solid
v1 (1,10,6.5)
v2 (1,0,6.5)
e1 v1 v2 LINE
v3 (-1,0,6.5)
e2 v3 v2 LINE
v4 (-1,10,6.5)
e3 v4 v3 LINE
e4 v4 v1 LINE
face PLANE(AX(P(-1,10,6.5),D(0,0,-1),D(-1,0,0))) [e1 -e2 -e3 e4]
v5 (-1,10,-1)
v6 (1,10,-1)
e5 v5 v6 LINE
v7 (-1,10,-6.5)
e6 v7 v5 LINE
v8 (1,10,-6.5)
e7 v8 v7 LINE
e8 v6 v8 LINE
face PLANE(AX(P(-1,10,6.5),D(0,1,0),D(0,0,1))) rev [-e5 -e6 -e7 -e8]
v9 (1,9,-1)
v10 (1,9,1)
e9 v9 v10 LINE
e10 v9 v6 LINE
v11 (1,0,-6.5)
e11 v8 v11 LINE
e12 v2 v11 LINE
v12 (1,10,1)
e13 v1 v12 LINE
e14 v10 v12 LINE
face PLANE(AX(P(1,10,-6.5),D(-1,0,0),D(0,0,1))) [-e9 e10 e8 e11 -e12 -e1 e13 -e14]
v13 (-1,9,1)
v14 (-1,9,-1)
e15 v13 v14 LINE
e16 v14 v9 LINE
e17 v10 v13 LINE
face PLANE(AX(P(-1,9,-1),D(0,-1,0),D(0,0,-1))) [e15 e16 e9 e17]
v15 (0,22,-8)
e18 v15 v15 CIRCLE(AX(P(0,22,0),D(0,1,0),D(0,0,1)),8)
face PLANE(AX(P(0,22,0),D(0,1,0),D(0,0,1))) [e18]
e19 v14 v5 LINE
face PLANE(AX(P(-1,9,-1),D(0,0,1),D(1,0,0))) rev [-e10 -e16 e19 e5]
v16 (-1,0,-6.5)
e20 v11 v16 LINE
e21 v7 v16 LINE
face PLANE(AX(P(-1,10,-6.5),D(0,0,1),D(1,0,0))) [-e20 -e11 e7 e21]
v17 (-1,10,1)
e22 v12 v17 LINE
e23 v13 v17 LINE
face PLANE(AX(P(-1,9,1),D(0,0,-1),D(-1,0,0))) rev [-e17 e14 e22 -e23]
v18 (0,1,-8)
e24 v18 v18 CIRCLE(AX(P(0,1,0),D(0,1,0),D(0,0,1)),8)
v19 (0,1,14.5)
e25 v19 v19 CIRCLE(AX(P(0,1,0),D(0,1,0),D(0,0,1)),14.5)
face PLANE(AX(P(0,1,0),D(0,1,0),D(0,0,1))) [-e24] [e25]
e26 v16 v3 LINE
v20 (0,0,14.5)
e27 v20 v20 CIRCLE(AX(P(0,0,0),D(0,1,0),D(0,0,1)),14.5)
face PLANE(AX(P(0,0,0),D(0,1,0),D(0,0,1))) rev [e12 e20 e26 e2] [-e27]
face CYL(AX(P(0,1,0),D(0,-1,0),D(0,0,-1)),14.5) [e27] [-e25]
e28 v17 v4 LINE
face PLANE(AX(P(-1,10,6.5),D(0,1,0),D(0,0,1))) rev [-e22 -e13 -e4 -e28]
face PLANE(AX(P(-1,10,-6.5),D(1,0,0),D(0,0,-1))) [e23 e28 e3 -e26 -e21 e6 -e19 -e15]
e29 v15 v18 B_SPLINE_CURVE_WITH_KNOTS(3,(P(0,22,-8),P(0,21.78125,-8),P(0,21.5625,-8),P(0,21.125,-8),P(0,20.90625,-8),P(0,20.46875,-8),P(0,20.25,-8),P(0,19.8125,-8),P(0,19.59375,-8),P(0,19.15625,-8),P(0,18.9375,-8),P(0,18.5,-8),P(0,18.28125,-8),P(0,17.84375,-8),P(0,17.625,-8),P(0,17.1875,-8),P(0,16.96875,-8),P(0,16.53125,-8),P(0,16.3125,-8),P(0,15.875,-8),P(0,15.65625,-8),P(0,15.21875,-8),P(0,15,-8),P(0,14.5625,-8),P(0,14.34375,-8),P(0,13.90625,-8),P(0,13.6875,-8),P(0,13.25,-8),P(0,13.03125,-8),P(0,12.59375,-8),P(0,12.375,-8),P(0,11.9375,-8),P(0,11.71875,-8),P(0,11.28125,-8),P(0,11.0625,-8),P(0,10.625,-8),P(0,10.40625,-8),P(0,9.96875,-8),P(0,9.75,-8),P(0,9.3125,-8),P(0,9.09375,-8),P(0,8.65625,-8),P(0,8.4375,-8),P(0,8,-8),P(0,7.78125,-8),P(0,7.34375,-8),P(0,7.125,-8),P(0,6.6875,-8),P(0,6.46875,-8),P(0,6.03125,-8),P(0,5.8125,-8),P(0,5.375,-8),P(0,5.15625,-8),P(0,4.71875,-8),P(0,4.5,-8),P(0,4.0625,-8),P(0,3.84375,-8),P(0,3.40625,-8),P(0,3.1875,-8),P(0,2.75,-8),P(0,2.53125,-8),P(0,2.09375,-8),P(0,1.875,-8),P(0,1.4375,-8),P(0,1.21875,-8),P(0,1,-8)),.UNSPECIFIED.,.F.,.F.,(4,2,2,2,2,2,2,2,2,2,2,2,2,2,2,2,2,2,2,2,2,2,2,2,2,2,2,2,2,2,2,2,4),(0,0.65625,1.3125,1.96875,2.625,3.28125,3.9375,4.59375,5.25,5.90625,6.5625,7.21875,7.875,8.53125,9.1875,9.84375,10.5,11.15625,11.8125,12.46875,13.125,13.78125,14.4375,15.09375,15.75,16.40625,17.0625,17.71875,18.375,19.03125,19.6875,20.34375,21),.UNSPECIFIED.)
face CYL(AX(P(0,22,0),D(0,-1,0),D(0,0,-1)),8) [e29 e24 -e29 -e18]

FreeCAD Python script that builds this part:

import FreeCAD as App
import Part
import Sketcher

V = App.Vector


def add_polygon(sketch, points):
    """Adds a closed chain of lines whose ends are joined by coincident constraints."""
    first, n = sketch.GeometryCount, len(points)
    for a, b in zip(points, points[1:] + points[:1]):
        sketch.addGeometry(Part.LineSegment(App.Vector(*a, 0), App.Vector(*b, 0)), False)
    for i in range(n):
        sketch.addConstraint(Sketcher.Constraint("Coincident", first + i, 2, first + (i + 1) % n, 1))

doc = App.newDocument("Part")
body = doc.addObject("PartDesign::Body", "Body")

# Sketch on XZ plane
sketch1 = body.newObject("Sketcher::SketchObject", "Sketch")
sketch1.AttachmentSupport = (doc.getObject("XZ_Plane"), [""])
sketch1.MapMode = "FlatFace"
sketch1.addGeometry(Part.Circle(V(0, 0, 0), V(0, 0, 1), 14), False)
sketch1.addConstraint([
    Sketcher.Constraint("Coincident", 0, 3, -1, 1),
    Sketcher.Constraint("Diameter", 0, 29.0),
])
pad1 = body.newObject("PartDesign::Pad", "Pad")
pad1.Profile = sketch1
pad1.Length = 1
pad1.Reversed = True

# Sketch on XZ plane
sketch2 = body.newObject("Sketcher::SketchObject", "Sketch001")
sketch2.AttachmentSupport = (doc.getObject("XZ_Plane"), [""])
sketch2.MapMode = "FlatFace"
sketch2.AttachmentOffset = App.Placement(V(0, 0, -1), App.Rotation())
sketch2.addGeometry(Part.Circle(V(0, 0, 0), V(0, 0, 1), 8), False)
sketch2.addConstraint([
    Sketcher.Constraint("Coincident", 0, 3, -1, 1),
    Sketcher.Constraint("Diameter", 0, 16.0),
])
pad2 = body.newObject("PartDesign::Pad", "Pad001")
pad2.Profile = sketch2
pad2.Length = 21
pad2.Reversed = True

# Sketch on XZ plane
sketch3 = body.newObject("Sketcher::SketchObject", "Sketch002")
sketch3.AttachmentSupport = (doc.getObject("XZ_Plane"), [""])
sketch3.MapMode = "FlatFace"
add_polygon(sketch3, [(1, 6.5), (1, -6.5), (-1, -6.5), (-1, 6.5)])  # lines 0-3
sketch3.addConstraint([
    Sketcher.Constraint("Vertical", 0),
    Sketcher.Constraint("Horizontal", 1),
    Sketcher.Constraint("Vertical", 2),
    Sketcher.Constraint("Horizontal", 3),
    Sketcher.Constraint("Symmetric", 0, 2, 2, 2, -1, 1),
    Sketcher.Constraint("DistanceX", 1, 2, 1, 1, 2.0),
    Sketcher.Constraint("DistanceY", 0, 2, 0, 1, 13.0),
])
pocket1 = body.newObject("PartDesign::Pocket", "Pocket")
pocket1.Profile = sketch3
pocket1.Length = 10

# Sketch on XZ plane
sketch4 = body.newObject("Sketcher::SketchObject", "Sketch003")
sketch4.AttachmentSupport = (doc.getObject("XZ_Plane"), [""])
sketch4.MapMode = "FlatFace"
sketch4.AttachmentOffset = App.Placement(V(0, 0, -10), App.Rotation())
add_polygon(sketch4, [(-1, 1), (-1, -1), (1, -1), (1, 1)])  # lines 0-3
sketch4.addConstraint([
    Sketcher.Constraint("Vertical", 0),
    Sketcher.Constraint("Horizontal", 1),
    Sketcher.Constraint("Vertical", 2),
    Sketcher.Constraint("Horizontal", 3),
    Sketcher.Constraint("Symmetric", 0, 2, 2, 2, -1, 1),
    Sketcher.Constraint("Equal", 3, 0),
    Sketcher.Constraint("DistanceX", 1, 1, 1, 2, 2.0),
])
pad3 = body.newObject("PartDesign::Pad", "Pad002")
pad3.Profile = sketch4
pad3.Length = 1

doc.recompute()
